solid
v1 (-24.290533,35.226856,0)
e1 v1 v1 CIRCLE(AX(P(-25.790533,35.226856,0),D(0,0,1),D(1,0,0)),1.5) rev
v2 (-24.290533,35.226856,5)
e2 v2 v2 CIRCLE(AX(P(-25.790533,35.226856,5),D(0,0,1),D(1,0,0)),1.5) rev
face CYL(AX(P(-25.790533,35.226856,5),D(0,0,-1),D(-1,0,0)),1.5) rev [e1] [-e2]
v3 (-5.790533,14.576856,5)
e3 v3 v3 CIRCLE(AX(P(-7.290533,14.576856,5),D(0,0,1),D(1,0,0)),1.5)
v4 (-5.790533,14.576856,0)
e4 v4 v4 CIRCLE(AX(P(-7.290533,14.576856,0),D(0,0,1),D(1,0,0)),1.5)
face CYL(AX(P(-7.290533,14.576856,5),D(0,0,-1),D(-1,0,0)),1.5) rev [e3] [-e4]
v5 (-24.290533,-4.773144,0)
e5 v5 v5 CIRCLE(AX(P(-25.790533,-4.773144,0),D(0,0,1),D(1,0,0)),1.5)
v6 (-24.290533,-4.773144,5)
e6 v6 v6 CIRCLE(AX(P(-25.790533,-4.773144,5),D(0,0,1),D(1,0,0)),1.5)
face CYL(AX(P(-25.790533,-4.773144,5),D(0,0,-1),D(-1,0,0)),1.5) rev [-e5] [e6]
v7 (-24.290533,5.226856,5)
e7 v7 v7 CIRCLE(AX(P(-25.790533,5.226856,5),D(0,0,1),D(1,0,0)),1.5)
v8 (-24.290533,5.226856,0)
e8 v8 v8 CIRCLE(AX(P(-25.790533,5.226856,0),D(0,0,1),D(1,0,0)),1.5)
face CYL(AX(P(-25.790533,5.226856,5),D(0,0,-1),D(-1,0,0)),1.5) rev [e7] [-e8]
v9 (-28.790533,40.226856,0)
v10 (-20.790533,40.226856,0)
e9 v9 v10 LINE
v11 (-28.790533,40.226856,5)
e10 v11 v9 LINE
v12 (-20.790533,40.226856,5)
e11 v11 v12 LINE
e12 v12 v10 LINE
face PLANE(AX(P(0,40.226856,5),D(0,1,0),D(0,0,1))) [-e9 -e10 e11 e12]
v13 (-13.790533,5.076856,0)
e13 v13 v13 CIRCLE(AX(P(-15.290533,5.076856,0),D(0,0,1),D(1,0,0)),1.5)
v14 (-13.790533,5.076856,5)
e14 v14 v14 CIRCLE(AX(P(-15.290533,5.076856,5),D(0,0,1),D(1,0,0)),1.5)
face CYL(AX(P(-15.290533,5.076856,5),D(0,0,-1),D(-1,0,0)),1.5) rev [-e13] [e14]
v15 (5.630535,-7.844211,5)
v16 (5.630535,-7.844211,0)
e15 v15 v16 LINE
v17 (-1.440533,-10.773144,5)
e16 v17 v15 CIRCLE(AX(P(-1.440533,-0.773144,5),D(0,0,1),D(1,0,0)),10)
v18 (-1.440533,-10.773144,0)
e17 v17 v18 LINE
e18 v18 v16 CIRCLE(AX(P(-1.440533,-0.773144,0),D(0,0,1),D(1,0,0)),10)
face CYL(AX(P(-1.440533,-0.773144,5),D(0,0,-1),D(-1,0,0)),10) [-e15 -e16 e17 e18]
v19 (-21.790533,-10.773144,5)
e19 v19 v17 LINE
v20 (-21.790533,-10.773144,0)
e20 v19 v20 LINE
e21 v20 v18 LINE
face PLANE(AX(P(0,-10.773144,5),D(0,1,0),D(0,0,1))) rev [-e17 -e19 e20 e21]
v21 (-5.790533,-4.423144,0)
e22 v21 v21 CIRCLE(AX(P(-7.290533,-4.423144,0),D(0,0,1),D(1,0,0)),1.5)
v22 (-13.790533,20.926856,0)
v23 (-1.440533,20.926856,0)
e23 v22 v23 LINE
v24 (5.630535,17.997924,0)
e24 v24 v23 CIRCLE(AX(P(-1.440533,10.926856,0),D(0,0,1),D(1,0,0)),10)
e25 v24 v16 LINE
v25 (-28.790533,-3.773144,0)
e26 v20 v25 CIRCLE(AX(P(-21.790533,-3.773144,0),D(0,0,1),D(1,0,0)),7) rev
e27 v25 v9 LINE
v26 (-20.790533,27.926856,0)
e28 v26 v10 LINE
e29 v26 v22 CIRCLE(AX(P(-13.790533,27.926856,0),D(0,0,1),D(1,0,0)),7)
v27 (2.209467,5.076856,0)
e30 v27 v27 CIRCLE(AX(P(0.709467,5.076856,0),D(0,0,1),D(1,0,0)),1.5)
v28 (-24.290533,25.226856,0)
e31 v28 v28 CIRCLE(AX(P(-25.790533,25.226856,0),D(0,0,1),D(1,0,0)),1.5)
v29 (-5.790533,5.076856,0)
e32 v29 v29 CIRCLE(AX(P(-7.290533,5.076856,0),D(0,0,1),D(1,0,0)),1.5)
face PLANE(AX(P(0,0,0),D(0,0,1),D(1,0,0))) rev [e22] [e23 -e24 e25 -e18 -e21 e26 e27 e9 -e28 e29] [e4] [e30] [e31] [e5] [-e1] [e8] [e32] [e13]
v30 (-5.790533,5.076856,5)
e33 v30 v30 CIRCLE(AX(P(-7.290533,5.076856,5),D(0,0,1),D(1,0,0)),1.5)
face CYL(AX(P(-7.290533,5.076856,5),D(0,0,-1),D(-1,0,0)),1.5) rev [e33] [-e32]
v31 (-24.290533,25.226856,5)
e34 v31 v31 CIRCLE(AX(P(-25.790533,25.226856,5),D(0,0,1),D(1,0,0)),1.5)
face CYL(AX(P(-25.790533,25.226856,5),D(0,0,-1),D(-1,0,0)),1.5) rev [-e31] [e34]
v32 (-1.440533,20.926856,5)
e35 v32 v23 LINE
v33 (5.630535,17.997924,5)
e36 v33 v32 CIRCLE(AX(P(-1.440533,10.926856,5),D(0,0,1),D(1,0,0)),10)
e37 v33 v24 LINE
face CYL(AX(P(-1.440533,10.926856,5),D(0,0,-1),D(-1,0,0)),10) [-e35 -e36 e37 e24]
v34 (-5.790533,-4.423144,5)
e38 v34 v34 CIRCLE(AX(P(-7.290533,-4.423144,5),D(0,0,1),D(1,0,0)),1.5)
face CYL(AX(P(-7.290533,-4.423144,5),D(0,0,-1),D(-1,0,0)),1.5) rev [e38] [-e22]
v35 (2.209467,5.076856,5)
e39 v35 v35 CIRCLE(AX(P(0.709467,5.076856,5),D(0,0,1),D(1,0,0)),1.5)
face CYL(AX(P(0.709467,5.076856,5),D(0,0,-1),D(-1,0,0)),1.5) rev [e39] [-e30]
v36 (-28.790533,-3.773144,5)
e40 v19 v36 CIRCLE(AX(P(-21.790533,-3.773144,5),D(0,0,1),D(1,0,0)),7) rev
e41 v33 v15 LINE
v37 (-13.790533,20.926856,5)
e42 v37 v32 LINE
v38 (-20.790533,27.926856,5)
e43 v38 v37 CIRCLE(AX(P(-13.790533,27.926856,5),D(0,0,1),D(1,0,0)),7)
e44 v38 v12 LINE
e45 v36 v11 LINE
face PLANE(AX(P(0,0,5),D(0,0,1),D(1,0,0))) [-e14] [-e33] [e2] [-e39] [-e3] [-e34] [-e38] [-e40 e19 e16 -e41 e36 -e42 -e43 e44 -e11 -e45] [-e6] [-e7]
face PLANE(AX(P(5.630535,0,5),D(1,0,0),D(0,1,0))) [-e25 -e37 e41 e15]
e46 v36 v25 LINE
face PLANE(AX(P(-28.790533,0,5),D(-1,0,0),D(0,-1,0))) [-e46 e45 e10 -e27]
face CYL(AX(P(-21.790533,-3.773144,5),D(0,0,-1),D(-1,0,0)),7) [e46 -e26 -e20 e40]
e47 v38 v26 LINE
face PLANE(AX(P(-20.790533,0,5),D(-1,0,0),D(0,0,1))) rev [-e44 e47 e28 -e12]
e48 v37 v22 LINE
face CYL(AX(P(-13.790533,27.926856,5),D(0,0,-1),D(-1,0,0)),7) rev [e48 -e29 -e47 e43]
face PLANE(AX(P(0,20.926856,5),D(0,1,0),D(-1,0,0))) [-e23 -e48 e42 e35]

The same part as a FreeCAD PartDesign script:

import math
import FreeCAD as App
import Part
import Sketcher

doc = App.newDocument("Part")
body = doc.addObject("PartDesign::Body", "Body")

# Sketch on XY plane
sketch1 = body.newObject("Sketcher::SketchObject", "Sketch")
sketch1.AttachmentSupport = (doc.getObject("XY_Plane"), [""])
sketch1.MapMode = "FlatFace"
sketch1.addGeometry(Part.LineSegment(App.Vector(-28.8, 40.2, 0), App.Vector(-28.8, -3.8, 0)), False)
sketch1.addGeometry(Part.ArcOfCircle(Part.Circle(App.Vector(-21.8, -3.8, 0), App.Vector(0, 0, 1), 7), math.radians(180), math.radians(270)), False)
sketch1.addGeometry(Part.LineSegment(App.Vector(-21.8, -10.8, 0), App.Vector(-1.4, -10.8, 0)), False)
sketch1.addGeometry(Part.ArcOfCircle(Part.Circle(App.Vector(-1.4, -0.8, 0), App.Vector(0, 0, 1), 10), math.radians(-90), math.radians(-45)), False)
sketch1.addGeometry(Part.LineSegment(App.Vector(5.6, -7.8, 0), App.Vector(5.6, 18, 0)), False)
sketch1.addGeometry(Part.ArcOfCircle(Part.Circle(App.Vector(-1.4, 10.9, 0), App.Vector(0, 0, 1), 10), math.radians(45), math.radians(90)), False)
sketch1.addGeometry(Part.LineSegment(App.Vector(-1.4, 20.9, 0), App.Vector(-13.8, 20.9, 0)), False)
sketch1.addGeometry(Part.ArcOfCircle(Part.Circle(App.Vector(-13.8, 27.9, 0), App.Vector(0, 0, 1), 7), math.radians(180), math.radians(270)), False)
sketch1.addGeometry(Part.LineSegment(App.Vector(-20.8, 27.9, 0), App.Vector(-20.8, 40.2, 0)), False)
sketch1.addGeometry(Part.LineSegment(App.Vector(-20.8, 40.2, 0), App.Vector(-28.8, 40.2, 0)), False)
sketch1.addGeometry(Part.Circle(App.Vector(-25.8, -4.8, 0), App.Vector(0, 0, 1), 1.5), False)
sketch1.addGeometry(Part.Circle(App.Vector(-25.8, 5.2, 0), App.Vector(0, 0, 1), 1.5), False)
sketch1.addGeometry(Part.Circle(App.Vector(-15.3, 5.1, 0), App.Vector(0, 0, 1), 1.5), False)
sketch1.addGeometry(Part.Circle(App.Vector(-7.3, -4.4, 0), App.Vector(0, 0, 1), 1.5), False)
sketch1.addGeometry(Part.Circle(App.Vector(-7.3, 5.1, 0), App.Vector(0, 0, 1), 1.5), False)
sketch1.addGeometry(Part.Circle(App.Vector(-7.3, 14.6, 0), App.Vector(0, 0, 1), 1.5), False)
sketch1.addGeometry(Part.Circle(App.Vector(0.7, 5.1, 0), App.Vector(0, 0, 1), 1.5), False)
sketch1.addGeometry(Part.Circle(App.Vector(-25.8, 25.2, 0), App.Vector(0, 0, 1), 1.5), False)
sketch1.addGeometry(Part.Circle(App.Vector(-25.8, 35.2, 0), App.Vector(0, 0, 1), 1.5), False)
sketch1.addConstraint(Sketcher.Constraint("Tangent", 0, 2, 1, 1))
sketch1.addConstraint(Sketcher.Constraint("Tangent", 1, 2, 2, 1))
sketch1.addConstraint(Sketcher.Constraint("Tangent", 2, 2, 3, 1))
sketch1.addConstraint(Sketcher.Constraint("Coincident", 3, 2, 4, 1))
sketch1.addConstraint(Sketcher.Constraint("Coincident", 4, 2, 5, 1))
sketch1.addConstraint(Sketcher.Constraint("Tangent", 5, 2, 6, 1))
sketch1.addConstraint(Sketcher.Constraint("Tangent", 6, 2, 7, 2))
sketch1.addConstraint(Sketcher.Constraint("Tangent", 7, 1, 8, 1))
sketch1.addConstraint(Sketcher.Constraint("Coincident", 8, 2, 9, 1))
sketch1.addConstraint(Sketcher.Constraint("Coincident", 9, 2, 0, 1))
sketch1.addConstraint(Sketcher.Constraint("Vertical", 0))
sketch1.addConstraint(Sketcher.Constraint("Horizontal", 2))
sketch1.addConstraint(Sketcher.Constraint("Vertical", 4))
sketch1.addConstraint(Sketcher.Constraint("Horizontal", 6))
sketch1.addConstraint(Sketcher.Constraint("Vertical", 8))
sketch1.addConstraint(Sketcher.Constraint("Horizontal", 9))
sketch1.addConstraint(Sketcher.Constraint("Equal", 3, 5))
sketch1.addConstraint(Sketcher.Constraint("Equal", 1, 7))
sketch1.addConstraint(Sketcher.Constraint("Equal", 10, 11))
sketch1.addConstraint(Sketcher.Constraint("Equal", 11, 12))
sketch1.addConstraint(Sketcher.Constraint("Equal", 12, 13))
sketch1.addConstraint(Sketcher.Constraint("Equal", 13, 14))
sketch1.addConstraint(Sketcher.Constraint("Equal", 14, 15))
sketch1.addConstraint(Sketcher.Constraint("Equal", 15, 16))
sketch1.addConstraint(Sketcher.Constraint("Equal", 16, 17))
sketch1.addConstraint(Sketcher.Constraint("Equal", 17, 18))
sketch1.addConstraint(Sketcher.Constraint("Horizontal", 12, 3, 14, 3))
sketch1.addConstraint(Sketcher.Constraint("Horizontal", 14, 3, 16, 3))
sketch1.addConstraint(Sketcher.Constraint("Vertical", 3, 3, 5, 3))
sketch1.addConstraint(Sketcher.Constraint("Vertical", 10, 3, 11, 3))
sketch1.addConstraint(Sketcher.Constraint("Vertical", 13, 3, 14, 3))
sketch1.addConstraint(Sketcher.Constraint("Vertical", 14, 3, 15, 3))
sketch1.addConstraint(Sketcher.Constraint("Vertical", 11, 3, 17, 3))
sketch1.addConstraint(Sketcher.Constraint("Vertical", 17, 3, 18, 3))
sketch1.addConstraint(Sketcher.Constraint("Diameter", 10, 3.0))
sketch1.addConstraint(Sketcher.Constraint("Radius", 1, 7.0))
sketch1.addConstraint(Sketcher.Constraint("Radius", 3, 10.0))
sketch1.addConstraint(Sketcher.Constraint("DistanceX", 9, 2, 9, 1, 8.0))
sketch1.addConstraint(Sketcher.Constraint("DistanceY", 0, 2, 0, 1, 44.0))
sketch1.addConstraint(Sketcher.Constraint("DistanceY", 8, 1, 8, 2, 12.3))
sketch1.addConstraint(Sketcher.Constraint("DistanceX", 10, 3, 1, 3, 4.0))
sketch1.addConstraint(Sketcher.Constraint("DistanceY", 10, 3, 1, 3, 1.0))
sketch1.addConstraint(Sketcher.Constraint("DistanceY", 1, 3, 11, 3, 9.0))
sketch1.addConstraint(Sketcher.Constraint("DistanceX", 12, 3, 13, 3, 8.0))
sketch1.addConstraint(Sketcher.Constraint("DistanceX", 14, 3, 16, 3, 8.0))
sketch1.addConstraint(Sketcher.Constraint("DistanceY", 11, 3, 17, 3, 20.0))
sketch1.addConstraint(Sketcher.Constraint("DistanceY", 17, 3, 18, 3, 10.0))
sketch1.addConstraint(Sketcher.Constraint("DistanceX", 2, 1, 2, 2, 20.35))
sketch1.addConstraint(Sketcher.Constraint("DistanceX", 11, 3, 12, 3, 10.5))
sketch1.addConstraint(Sketcher.Constraint("DistanceY", 13, 3, 12, 3, 9.5))
sketch1.addConstraint(Sketcher.Constraint("DistanceY", 14, 3, 15, 3, 9.5))
sketch1.addConstraint(Sketcher.Constraint("DistanceY", 12, 3, 11, 3, 0.15))
sketch1.addConstraint(Sketcher.Constraint("DistanceY", 4, 1, 4, 2, 25.842136))
sketch1.addConstraint(Sketcher.Constraint("DistanceY", 3, 2, -1, 1, 7.844211))
sketch1.addConstraint(Sketcher.Constraint("DistanceX", 1, 3, -1, 1, 21.790533))
pad1 = body.newObject("PartDesign::Pad", "Pad")
pad1.Profile = sketch1
pad1.Length = 5

doc.recompute()
